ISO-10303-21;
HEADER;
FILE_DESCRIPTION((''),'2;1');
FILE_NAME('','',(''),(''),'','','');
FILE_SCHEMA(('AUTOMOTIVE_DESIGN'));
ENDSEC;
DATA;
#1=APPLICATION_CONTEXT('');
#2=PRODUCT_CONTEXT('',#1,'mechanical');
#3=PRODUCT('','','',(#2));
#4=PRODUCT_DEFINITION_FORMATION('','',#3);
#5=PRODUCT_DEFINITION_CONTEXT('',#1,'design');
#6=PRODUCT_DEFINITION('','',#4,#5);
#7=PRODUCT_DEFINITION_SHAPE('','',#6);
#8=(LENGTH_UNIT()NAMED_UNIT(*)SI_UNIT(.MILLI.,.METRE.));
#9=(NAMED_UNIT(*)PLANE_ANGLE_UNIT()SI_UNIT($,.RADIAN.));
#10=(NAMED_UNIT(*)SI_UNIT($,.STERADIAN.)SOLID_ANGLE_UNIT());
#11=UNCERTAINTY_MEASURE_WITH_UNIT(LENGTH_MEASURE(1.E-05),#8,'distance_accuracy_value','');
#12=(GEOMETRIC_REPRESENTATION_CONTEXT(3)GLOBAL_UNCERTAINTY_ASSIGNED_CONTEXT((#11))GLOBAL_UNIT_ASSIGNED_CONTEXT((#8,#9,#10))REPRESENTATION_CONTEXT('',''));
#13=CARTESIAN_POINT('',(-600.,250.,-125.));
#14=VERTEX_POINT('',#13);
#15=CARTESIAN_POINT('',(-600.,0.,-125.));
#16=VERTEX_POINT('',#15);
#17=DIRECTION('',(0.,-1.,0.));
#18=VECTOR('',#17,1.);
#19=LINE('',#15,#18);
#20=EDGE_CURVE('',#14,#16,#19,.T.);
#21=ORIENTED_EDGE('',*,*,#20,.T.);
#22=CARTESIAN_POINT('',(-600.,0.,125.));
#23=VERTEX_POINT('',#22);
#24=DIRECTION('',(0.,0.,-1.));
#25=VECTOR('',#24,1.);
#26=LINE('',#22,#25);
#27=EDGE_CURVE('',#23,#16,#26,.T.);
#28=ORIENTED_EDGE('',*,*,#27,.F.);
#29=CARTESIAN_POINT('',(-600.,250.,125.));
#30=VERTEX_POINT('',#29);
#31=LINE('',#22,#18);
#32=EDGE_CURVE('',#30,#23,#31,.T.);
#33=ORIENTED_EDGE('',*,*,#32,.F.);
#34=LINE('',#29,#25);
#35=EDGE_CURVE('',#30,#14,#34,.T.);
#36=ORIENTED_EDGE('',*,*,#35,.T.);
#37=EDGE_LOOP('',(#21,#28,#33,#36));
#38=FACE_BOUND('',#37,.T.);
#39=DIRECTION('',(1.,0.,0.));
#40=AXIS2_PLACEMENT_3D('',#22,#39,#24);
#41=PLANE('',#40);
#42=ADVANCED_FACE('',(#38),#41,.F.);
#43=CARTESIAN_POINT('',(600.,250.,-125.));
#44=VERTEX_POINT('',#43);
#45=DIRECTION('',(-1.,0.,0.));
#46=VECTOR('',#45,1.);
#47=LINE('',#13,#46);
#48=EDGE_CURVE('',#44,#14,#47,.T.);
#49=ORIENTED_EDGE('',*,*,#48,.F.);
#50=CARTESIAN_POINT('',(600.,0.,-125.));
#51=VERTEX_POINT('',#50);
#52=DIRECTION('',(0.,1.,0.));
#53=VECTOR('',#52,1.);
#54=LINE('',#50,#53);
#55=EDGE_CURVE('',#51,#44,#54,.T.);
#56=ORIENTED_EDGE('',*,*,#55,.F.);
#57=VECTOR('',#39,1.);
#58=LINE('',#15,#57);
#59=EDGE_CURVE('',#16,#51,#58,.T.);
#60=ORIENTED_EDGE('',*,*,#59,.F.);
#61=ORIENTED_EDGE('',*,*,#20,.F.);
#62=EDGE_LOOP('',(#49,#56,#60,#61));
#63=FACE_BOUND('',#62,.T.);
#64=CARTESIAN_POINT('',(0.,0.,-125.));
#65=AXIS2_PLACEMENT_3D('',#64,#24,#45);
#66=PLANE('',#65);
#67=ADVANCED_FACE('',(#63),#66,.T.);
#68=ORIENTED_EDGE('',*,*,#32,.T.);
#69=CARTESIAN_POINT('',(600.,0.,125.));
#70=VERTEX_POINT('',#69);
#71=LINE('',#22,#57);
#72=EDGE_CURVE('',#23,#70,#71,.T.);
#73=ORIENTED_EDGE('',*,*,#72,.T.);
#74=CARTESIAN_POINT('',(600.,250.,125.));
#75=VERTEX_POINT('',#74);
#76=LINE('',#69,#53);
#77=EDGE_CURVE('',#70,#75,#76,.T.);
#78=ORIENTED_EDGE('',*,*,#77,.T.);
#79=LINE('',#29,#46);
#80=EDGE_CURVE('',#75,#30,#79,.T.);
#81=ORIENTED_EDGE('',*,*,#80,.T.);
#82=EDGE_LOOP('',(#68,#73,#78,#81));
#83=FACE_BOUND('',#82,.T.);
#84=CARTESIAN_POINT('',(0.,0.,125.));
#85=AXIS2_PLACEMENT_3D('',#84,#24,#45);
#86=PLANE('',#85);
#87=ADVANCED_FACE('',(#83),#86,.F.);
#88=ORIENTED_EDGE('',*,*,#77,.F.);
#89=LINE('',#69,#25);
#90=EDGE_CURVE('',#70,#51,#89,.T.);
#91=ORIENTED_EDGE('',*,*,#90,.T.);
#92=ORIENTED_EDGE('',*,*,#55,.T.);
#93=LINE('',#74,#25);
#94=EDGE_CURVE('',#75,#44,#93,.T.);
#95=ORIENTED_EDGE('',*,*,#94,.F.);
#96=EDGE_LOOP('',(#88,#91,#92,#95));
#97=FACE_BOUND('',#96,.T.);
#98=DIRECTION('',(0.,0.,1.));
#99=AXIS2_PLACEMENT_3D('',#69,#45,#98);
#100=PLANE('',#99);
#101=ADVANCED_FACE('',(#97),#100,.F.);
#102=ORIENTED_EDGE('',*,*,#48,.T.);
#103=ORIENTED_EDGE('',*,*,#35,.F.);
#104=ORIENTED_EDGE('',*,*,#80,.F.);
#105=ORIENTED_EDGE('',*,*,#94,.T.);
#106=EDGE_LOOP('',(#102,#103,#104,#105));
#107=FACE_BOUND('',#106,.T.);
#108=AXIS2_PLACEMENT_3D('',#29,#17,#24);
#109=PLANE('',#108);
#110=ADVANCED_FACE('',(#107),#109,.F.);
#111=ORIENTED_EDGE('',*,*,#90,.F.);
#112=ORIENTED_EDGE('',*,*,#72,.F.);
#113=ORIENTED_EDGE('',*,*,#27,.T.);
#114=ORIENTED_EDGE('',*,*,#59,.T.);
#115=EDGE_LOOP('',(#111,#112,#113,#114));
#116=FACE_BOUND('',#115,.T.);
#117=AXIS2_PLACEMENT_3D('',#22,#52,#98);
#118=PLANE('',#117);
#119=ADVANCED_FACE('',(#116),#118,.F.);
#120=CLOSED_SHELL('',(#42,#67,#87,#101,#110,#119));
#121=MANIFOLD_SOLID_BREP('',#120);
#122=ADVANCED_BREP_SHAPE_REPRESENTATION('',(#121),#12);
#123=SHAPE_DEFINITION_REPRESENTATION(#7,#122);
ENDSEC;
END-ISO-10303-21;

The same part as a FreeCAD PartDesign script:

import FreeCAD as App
import Part
import Sketcher

V = App.Vector

doc = App.newDocument("Part")
body = doc.addObject("PartDesign::Body", "Body")

sketch1 = doc.addObject("Sketcher::SketchObject", "Sketch")
body.addObject(sketch1)
sketch1.AttachmentSupport = (doc.XY_Plane, [""])
sketch1.MapMode = "FlatFace"
sketch1.addGeometry(Part.LineSegment(V(-600, 250, 0), V(-600, 0, 0)), False)
sketch1.addGeometry(Part.LineSegment(V(-600, 0, 0), V(600, 0, 0)), False)
sketch1.addGeometry(Part.LineSegment(V(600, 0, 0), V(600, 250, 0)), False)
sketch1.addGeometry(Part.LineSegment(V(600, 250, 0), V(-600, 250, 0)), False)
sketch1.addConstraint(Sketcher.Constraint("Coincident", 0, 2, 1, 1))
sketch1.addConstraint(Sketcher.Constraint("Coincident", 1, 2, 2, 1))
sketch1.addConstraint(Sketcher.Constraint("Coincident", 2, 2, 3, 1))
sketch1.addConstraint(Sketcher.Constraint("Coincident", 3, 2, 0, 1))
sketch1.addConstraint(Sketcher.Constraint("Vertical", 0))
sketch1.addConstraint(Sketcher.Constraint("Horizontal", 1))
sketch1.addConstraint(Sketcher.Constraint("Vertical", 2))
sketch1.addConstraint(Sketcher.Constraint("Horizontal", 3))
sketch1.addConstraint(Sketcher.Constraint("Symmetric", 0, 2, 1, 2, -1, 1))
sketch1.addConstraint(Sketcher.Constraint("DistanceX", 1, 1, 1, 2, 1200.0))
sketch1.addConstraint(Sketcher.Constraint("DistanceY", 0, 2, 0, 1, 250.0))
pad1 = doc.addObject("PartDesign::Pad", "Pad")
body.addObject(pad1)
pad1.Profile = sketch1
pad1.Length = 250
pad1.Midplane = True

doc.recompute()
